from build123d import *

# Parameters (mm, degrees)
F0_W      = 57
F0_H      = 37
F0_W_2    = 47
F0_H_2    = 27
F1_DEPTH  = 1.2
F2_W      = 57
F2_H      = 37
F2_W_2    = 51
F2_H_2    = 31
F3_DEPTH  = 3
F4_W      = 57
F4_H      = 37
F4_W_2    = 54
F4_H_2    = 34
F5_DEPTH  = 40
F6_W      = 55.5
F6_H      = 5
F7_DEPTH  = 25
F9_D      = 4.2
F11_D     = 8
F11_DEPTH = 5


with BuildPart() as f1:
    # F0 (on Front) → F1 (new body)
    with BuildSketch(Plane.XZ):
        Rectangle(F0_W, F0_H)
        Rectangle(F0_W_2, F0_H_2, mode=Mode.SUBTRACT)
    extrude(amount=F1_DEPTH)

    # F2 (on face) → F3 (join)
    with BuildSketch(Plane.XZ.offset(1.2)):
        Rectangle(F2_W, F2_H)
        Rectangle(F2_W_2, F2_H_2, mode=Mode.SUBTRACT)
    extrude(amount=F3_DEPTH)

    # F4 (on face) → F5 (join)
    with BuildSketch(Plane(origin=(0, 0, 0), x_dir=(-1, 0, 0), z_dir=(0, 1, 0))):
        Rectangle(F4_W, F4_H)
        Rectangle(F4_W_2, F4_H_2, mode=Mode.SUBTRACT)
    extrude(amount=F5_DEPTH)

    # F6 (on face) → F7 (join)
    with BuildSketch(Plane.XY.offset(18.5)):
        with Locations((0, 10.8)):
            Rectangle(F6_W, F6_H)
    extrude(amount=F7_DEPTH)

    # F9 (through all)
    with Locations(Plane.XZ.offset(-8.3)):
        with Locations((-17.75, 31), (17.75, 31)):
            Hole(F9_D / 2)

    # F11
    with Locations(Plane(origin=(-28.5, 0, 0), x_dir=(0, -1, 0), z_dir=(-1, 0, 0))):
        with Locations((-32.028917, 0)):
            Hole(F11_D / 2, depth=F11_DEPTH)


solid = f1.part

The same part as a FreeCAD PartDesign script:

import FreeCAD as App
import Part
import Sketcher

V = App.Vector
Q = App.Units.Quantity


def add_polygon(sketch, points):
    """Adds a closed chain of lines whose ends are joined by coincident constraints."""
    first, n = sketch.GeometryCount, len(points)
    for a, b in zip(points, points[1:] + points[:1]):
        sketch.addGeometry(Part.LineSegment(App.Vector(*a, 0), App.Vector(*b, 0)), False)
    for i in range(n):
        sketch.addConstraint(Sketcher.Constraint("Coincident", first + i, 2, first + (i + 1) % n, 1))

doc = App.newDocument("Part")
params = doc.addObject("Spreadsheet::Sheet", "Params")
for row, (alias, value) in enumerate([
    ("sketch1_width", "57 mm"),
    ("sketch1_width2", "47 mm"),
    ("sketch1_height", "37 mm"),
    ("sketch1_height2", "27 mm"),
    ("pad1_length", "1.2 mm"),
    ("sketch2_width", "57 mm"),
    ("sketch2_width2", "51 mm"),
    ("sketch2_height", "37 mm"),
    ("sketch2_height2", "31 mm"),
    ("pad2_length", "3 mm"),
    ("sketch3_width", "57 mm"),
    ("sketch3_width2", "54 mm"),
    ("sketch3_height", "37 mm"),
    ("sketch3_height2", "34 mm"),
    ("pad3_length", "40 mm"),
    ("sketch4_height", "5 mm"),
    ("sketch4_width", "55.5 mm"),
    ("pad4_length", "25 mm"),
    ("sketch5_diameter", "4.2 mm"),
    ("hole_diameter", "4.2 mm"),
    ("sketch6_diameter", "8 mm"),
    ("hole2_diameter", "8 mm"),
    ("hole2_depth", "5 mm"),
], start=1):
    params.set(f"A{row}", alias)
    params.set(f"B{row}", "=" + value)
    params.setAlias(f"B{row}", alias)

body = doc.addObject("PartDesign::Body", "Body")

sketch1 = body.newObject("Sketcher::SketchObject", "Sketch")
sketch1.AttachmentSupport = (doc.getObject("XZ_Plane"), [""])
sketch1.MapMode = "FlatFace"
add_polygon(sketch1, [(-28, 18), (-28, -18), (28, -18), (28, 18)])
add_polygon(sketch1, [(24, -14), (-24, -14), (-24, 14), (24, 14)])
sketch1.addConstraint([
    Sketcher.Constraint("Vertical", 0),
    Sketcher.Constraint("Horizontal", 1),
    Sketcher.Constraint("Vertical", 2),
    Sketcher.Constraint("Horizontal", 3),
    Sketcher.Constraint("Horizontal", 4),
    Sketcher.Constraint("Vertical", 5),
    Sketcher.Constraint("Horizontal", 6),
    Sketcher.Constraint("Vertical", 7),
    Sketcher.Constraint("Symmetric", 0, 2, 2, 2, -1, 1),
    Sketcher.Constraint("Symmetric", 4, 2, 6, 2, -1, 1),
    Sketcher.Constraint("DistanceX", 1, 1, 1, 2, Q("57 mm")),
    Sketcher.Constraint("DistanceX", 4, 2, 4, 1, Q("47 mm")),
    Sketcher.Constraint("DistanceY", 0, 2, 0, 1, Q("37 mm")),
    Sketcher.Constraint("DistanceY", 5, 1, 5, 2, Q("27 mm")),
])
sketch1.setExpression("Constraints[18]", "Params.sketch1_width")
sketch1.setExpression("Constraints[19]", "Params.sketch1_width2")
sketch1.setExpression("Constraints[20]", "Params.sketch1_height")
sketch1.setExpression("Constraints[21]", "Params.sketch1_height2")
pad1 = body.newObject("PartDesign::Pad", "Pad")
pad1.Profile = sketch1
pad1.setExpression("Length", "Params.pad1_length")

sketch2 = body.newObject("Sketcher::SketchObject", "Sketch001")
sketch2.AttachmentSupport = (doc.getObject("XZ_Plane"), [""])
sketch2.MapMode = "FlatFace"
sketch2.AttachmentOffset = App.Placement(V(0, 0, 1.2), App.Rotation())
add_polygon(sketch2, [(-28, 18), (-28, -18), (28, -18), (28, 18)])
add_polygon(sketch2, [(26, -16), (-26, -16), (-26, 16), (26, 16)])
sketch2.addConstraint([
    Sketcher.Constraint("Vertical", 0),
    Sketcher.Constraint("Horizontal", 1),
    Sketcher.Constraint("Vertical", 2),
    Sketcher.Constraint("Horizontal", 3),
    Sketcher.Constraint("Horizontal", 4),
    Sketcher.Constraint("Vertical", 5),
    Sketcher.Constraint("Horizontal", 6),
    Sketcher.Constraint("Vertical", 7),
    Sketcher.Constraint("Symmetric", 0, 2, 2, 2, -1, 1),
    Sketcher.Constraint("Symmetric", 4, 2, 6, 2, -1, 1),
    Sketcher.Constraint("DistanceX", 1, 1, 1, 2, Q("57 mm")),
    Sketcher.Constraint("DistanceX", 4, 2, 4, 1, Q("51 mm")),
    Sketcher.Constraint("DistanceY", 0, 2, 0, 1, Q("37 mm")),
    Sketcher.Constraint("DistanceY", 5, 1, 5, 2, Q("31 mm")),
])
sketch2.setExpression("Constraints[18]", "Params.sketch2_width")
sketch2.setExpression("Constraints[19]", "Params.sketch2_width2")
sketch2.setExpression("Constraints[20]", "Params.sketch2_height")
sketch2.setExpression("Constraints[21]", "Params.sketch2_height2")
pad2 = body.newObject("PartDesign::Pad", "Pad001")
pad2.Profile = sketch2
pad2.setExpression("Length", "Params.pad2_length")

sketch3 = body.newObject("Sketcher::SketchObject", "Sketch002")
sketch3.AttachmentSupport = (doc.getObject("XZ_Plane"), [""])
sketch3.MapMode = "FlatFace"
add_polygon(sketch3, [(28, 18), (28, -18), (-28, -18), (-28, 18)])
add_polygon(sketch3, [(-27, -17), (27, -17), (27, 17), (-27, 17)])
sketch3.addConstraint([
    Sketcher.Constraint("Vertical", 0),
    Sketcher.Constraint("Horizontal", 1),
    Sketcher.Constraint("Vertical", 2),
    Sketcher.Constraint("Horizontal", 3),
    Sketcher.Constraint("Horizontal", 4),
    Sketcher.Constraint("Vertical", 5),
    Sketcher.Constraint("Horizontal", 6),
    Sketcher.Constraint("Vertical", 7),
    Sketcher.Constraint("Symmetric", 0, 2, 2, 2, -1, 1),
    Sketcher.Constraint("Symmetric", 4, 2, 6, 2, -1, 1),
    Sketcher.Constraint("DistanceX", 1, 2, 1, 1, Q("57 mm")),
    Sketcher.Constraint("DistanceX", 4, 1, 4, 2, Q("54 mm")),
    Sketcher.Constraint("DistanceY", 0, 2, 0, 1, Q("37 mm")),
    Sketcher.Constraint("DistanceY", 5, 1, 5, 2, Q("34 mm")),
])
sketch3.setExpression("Constraints[18]", "Params.sketch3_width")
sketch3.setExpression("Constraints[19]", "Params.sketch3_width2")
sketch3.setExpression("Constraints[20]", "Params.sketch3_height")
sketch3.setExpression("Constraints[21]", "Params.sketch3_height2")
pad3 = body.newObject("PartDesign::Pad", "Pad002")
pad3.Profile = sketch3
pad3.setExpression("Length", "Params.pad3_length")
pad3.Reversed = True

sketch4 = body.newObject("Sketcher::SketchObject", "Sketch003")
sketch4.AttachmentSupport = (doc.getObject("XY_Plane"), [""])
sketch4.MapMode = "FlatFace"
sketch4.AttachmentOffset = App.Placement(V(0, 0, 18.5), App.Rotation())
add_polygon(sketch4, [(-28, 13), (-28, 8), (28, 8), (28, 13)])
sketch4.addConstraint([
    Sketcher.Constraint("Vertical", 0),
    Sketcher.Constraint("Horizontal", 1),
    Sketcher.Constraint("Vertical", 2),
    Sketcher.Constraint("Horizontal", 3),
    Sketcher.Constraint("DistanceY", 0, 2, 0, 1, Q("5 mm")),
    Sketcher.Constraint("DistanceX", 1, 1, 1, 2, Q("55.5 mm")),
    Sketcher.Constraint("DistanceY", -1, 1, 0, 2, Q("8.3 mm")),
    Sketcher.Constraint("DistanceX", 0, 2, -1, 1, Q("27.75 mm")),
])
sketch4.setExpression("Constraints[8]", "Params.sketch4_height")
sketch4.setExpression("Constraints[9]", "Params.sketch4_width")
pad4 = body.newObject("PartDesign::Pad", "Pad003")
pad4.Profile = sketch4
pad4.setExpression("Length", "Params.pad4_length")

sketch5 = body.newObject("Sketcher::SketchObject", "Sketch004")
sketch5.AttachmentSupport = (doc.getObject("XZ_Plane"), [""])
sketch5.MapMode = "FlatFace"
sketch5.AttachmentOffset = App.Placement(V(0, 0, -8.3), App.Rotation())
sketch5.addGeometry([
    Part.Circle(V(-17.8, 31, 0), V(0, 0, 1), 2.1),
    Part.Circle(V(17.8, 31, 0), V(0, 0, 1), 2.1),
], False)
sketch5.addConstraint([
    Sketcher.Constraint("Equal", 0, 1),
    Sketcher.Constraint("Symmetric", 0, 3, 1, 3, -2),
    Sketcher.Constraint("Diameter", 0, Q("4.2 mm")),
    Sketcher.Constraint("DistanceY", -1, 1, 0, 3, Q("31 mm")),
    Sketcher.Constraint("DistanceX", 0, 3, 1, 3, Q("35.5 mm")),
])
sketch5.setExpression("Constraints[2]", "Params.sketch5_diameter")
doc.recompute()
hole = body.newObject("PartDesign::Hole", "Hole")
hole.Profile = sketch5
hole.ThreadType = "None"
hole.setExpression("Diameter", "Params.hole_diameter")
hole.DepthType = "ThroughAll"

sketch6 = body.newObject("Sketcher::SketchObject", "Sketch005")
sketch6.AttachmentSupport = (doc.getObject("YZ_Plane"), [""])
sketch6.MapMode = "FlatFace"
sketch6.AttachmentOffset = App.Placement(V(0, 0, -28.5), App.Rotation())
sketch6.addGeometry(Part.Circle(V(32, 0, 0), V(0, 0, 1), 4), False)
sketch6.addConstraint([
    Sketcher.Constraint("PointOnObject", 0, 3, -1),
    Sketcher.Constraint("Diameter", 0, Q("8 mm")),
    Sketcher.Constraint("DistanceX", -1, 1, 0, 3, Q("32.028917 mm")),
])
sketch6.setExpression("Constraints[1]", "Params.sketch6_diameter")
doc.recompute()
hole2 = body.newObject("PartDesign::Hole", "Hole001")
hole2.Profile = sketch6
hole2.ThreadType = "None"
hole2.setExpression("Diameter", "Params.hole2_diameter")
hole2.DepthType = "Dimension"
hole2.setExpression("Depth", "Params.hole2_depth")
hole2.DrillPoint = "Flat"
hole2.Reversed = True

doc.recompute()
